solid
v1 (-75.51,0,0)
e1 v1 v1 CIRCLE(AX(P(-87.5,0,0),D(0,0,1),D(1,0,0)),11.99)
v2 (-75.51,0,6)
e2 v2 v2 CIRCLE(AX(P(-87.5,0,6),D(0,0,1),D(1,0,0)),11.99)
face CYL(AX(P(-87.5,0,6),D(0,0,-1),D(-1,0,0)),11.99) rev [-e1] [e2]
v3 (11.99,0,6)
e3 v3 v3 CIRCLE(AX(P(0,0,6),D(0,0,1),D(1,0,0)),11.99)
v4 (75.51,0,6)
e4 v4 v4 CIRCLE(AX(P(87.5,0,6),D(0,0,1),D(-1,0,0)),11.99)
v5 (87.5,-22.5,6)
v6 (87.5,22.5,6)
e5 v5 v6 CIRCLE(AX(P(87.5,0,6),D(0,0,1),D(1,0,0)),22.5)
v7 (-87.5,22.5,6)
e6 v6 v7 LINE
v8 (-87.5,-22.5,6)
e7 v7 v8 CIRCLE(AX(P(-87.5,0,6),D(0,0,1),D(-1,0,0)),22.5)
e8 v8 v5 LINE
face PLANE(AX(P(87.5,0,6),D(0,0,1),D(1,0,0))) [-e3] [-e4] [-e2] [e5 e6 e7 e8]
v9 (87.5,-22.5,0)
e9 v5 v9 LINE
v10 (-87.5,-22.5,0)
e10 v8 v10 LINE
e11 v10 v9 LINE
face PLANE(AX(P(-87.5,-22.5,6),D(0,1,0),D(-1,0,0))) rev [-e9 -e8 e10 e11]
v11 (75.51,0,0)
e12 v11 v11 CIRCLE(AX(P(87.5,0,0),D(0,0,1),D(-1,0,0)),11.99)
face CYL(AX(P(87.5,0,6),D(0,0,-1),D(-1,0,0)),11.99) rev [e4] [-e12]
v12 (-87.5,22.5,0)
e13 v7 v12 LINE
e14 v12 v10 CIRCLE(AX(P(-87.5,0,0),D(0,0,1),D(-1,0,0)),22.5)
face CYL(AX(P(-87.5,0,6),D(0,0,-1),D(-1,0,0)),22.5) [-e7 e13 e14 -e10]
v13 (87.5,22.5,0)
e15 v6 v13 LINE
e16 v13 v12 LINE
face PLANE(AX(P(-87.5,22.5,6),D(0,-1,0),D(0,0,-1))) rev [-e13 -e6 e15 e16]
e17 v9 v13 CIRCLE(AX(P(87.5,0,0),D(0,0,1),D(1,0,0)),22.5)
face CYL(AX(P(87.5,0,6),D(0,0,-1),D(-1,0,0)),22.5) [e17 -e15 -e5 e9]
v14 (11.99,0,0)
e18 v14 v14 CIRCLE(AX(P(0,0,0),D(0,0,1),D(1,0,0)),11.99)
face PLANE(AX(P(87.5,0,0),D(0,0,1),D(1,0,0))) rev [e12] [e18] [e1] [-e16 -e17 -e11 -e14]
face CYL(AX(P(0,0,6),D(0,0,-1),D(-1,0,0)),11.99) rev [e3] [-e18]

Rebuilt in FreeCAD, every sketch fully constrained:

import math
import FreeCAD as App
import Part
import Sketcher
Q = App.Units.Quantity

doc = App.newDocument("Part")
params = doc.addObject("Spreadsheet::Sheet", "Params")
for row, (alias, value) in enumerate([
    ("sketch1_radius", "22.5 mm"),
    ("sketch1_diameter", "23.98 mm"),
    ("sketch1_width", "175 mm"),
    ("pad1_length", "6 mm"),
], start=1):
    params.set(f"A{row}", alias)
    params.set(f"B{row}", "=" + value)
    params.setAlias(f"B{row}", alias)

body = doc.addObject("PartDesign::Body", "Body")

sketch1 = doc.addObject("Sketcher::SketchObject", "Sketch")
body.addObject(sketch1)
sketch1.AttachmentSupport = (doc.XY_Plane, [""])
sketch1.MapMode = "FlatFace"
sketch1.addGeometry(Part.LineSegment(App.Vector(-87.5, -22.5, 0), App.Vector(87.5, -22.5, 0)), False)
sketch1.addGeometry(Part.ArcOfCircle(Part.Circle(App.Vector(87.5, 0, 0), App.Vector(0, 0, 1), 22.5), math.radians(-90), math.radians(90)), False)
sketch1.addGeometry(Part.LineSegment(App.Vector(87.5, 22.5, 0), App.Vector(-87.5, 22.5, 0)), False)
sketch1.addGeometry(Part.ArcOfCircle(Part.Circle(App.Vector(-87.5, 0, 0), App.Vector(0, 0, 1), 22.5), math.radians(90), math.radians(270)), False)
sketch1.addGeometry(Part.Circle(App.Vector(-87.5, 0, 0), App.Vector(0, 0, 1), 11.99), False)
sketch1.addGeometry(Part.Circle(App.Vector(0, 0, 0), App.Vector(0, 0, 1), 11.99), False)
sketch1.addGeometry(Part.Circle(App.Vector(87.5, 0, 0), App.Vector(0, 0, 1), 11.99), False)
sketch1.addConstraint(Sketcher.Constraint("Tangent", 0, 2, 1, 1))
sketch1.addConstraint(Sketcher.Constraint("Tangent", 1, 2, 2, 1))
sketch1.addConstraint(Sketcher.Constraint("Tangent", 2, 2, 3, 1))
sketch1.addConstraint(Sketcher.Constraint("Tangent", 3, 2, 0, 1))
sketch1.addConstraint(Sketcher.Constraint("Horizontal", 0))
sketch1.addConstraint(Sketcher.Constraint("Horizontal", 2))
sketch1.addConstraint(Sketcher.Constraint("Coincident", 5, 3, -1, 1))
sketch1.addConstraint(Sketcher.Constraint("Coincident", 4, 3, 3, 3))
sketch1.addConstraint(Sketcher.Constraint("Coincident", 6, 3, 1, 3))
sketch1.addConstraint(Sketcher.Constraint("Equal", 4, 5))
sketch1.addConstraint(Sketcher.Constraint("Equal", 5, 6))
sketch1.addConstraint(Sketcher.Constraint("Symmetric", 1, 3, 3, 3, -1, 1))
sketch1.addConstraint(Sketcher.Constraint("Radius", 1, Q("22.5 mm")))
sketch1.addConstraint(Sketcher.Constraint("Diameter", 4, Q("23.98 mm")))
sketch1.addConstraint(Sketcher.Constraint("DistanceX", 0, 1, 0, 2, Q("175 mm")))
sketch1.setExpression("Constraints[12]", "Params.sketch1_radius")
sketch1.setExpression("Constraints[13]", "Params.sketch1_diameter")
sketch1.setExpression("Constraints[14]", "Params.sketch1_width")
pad1 = doc.addObject("PartDesign::Pad", "Pad")
body.addObject(pad1)
pad1.Profile = sketch1
pad1.setExpression("Length", "Params.pad1_length")

doc.recompute()
